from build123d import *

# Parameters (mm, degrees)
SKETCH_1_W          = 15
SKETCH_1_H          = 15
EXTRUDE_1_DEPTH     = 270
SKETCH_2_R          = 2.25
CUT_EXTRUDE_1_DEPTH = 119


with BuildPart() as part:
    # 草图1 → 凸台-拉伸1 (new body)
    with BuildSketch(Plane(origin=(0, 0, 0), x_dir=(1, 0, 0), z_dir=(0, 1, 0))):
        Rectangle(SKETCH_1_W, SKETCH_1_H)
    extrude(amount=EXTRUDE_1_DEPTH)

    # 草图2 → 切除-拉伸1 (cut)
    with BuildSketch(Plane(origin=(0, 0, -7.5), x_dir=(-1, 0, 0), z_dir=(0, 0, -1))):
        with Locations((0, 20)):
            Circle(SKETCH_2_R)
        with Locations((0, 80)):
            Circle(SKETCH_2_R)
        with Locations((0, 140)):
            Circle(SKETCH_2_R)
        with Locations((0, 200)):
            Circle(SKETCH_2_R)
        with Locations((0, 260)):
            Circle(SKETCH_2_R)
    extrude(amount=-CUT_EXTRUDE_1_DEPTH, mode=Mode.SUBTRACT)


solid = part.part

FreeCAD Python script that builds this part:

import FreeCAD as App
import Part
import Sketcher

V = App.Vector
Q = App.Units.Quantity


def add_polygon(sketch, points):
    """Adds a closed chain of lines whose ends are joined by coincident constraints."""
    first, n = sketch.GeometryCount, len(points)
    for a, b in zip(points, points[1:] + points[:1]):
        sketch.addGeometry(Part.LineSegment(App.Vector(*a, 0), App.Vector(*b, 0)), False)
    for i in range(n):
        sketch.addConstraint(Sketcher.Constraint("Coincident", first + i, 2, first + (i + 1) % n, 1))

doc = App.newDocument("Part")
params = doc.addObject("Spreadsheet::Sheet", "Params")
for row, (alias, value) in enumerate([
    ("sketch1_width", "15 mm"),
    ("pad1_length", "270 mm"),
    ("sketch2_diameter", "4.5 mm"),
    ("pocket1_length", "119 mm"),
], start=1):
    params.set(f"A{row}", alias)
    params.set(f"B{row}", "=" + value)
    params.setAlias(f"B{row}", alias)

body = doc.addObject("PartDesign::Body", "Body")

# Sketch on XZ plane
sketch1 = doc.addObject("Sketcher::SketchObject", "Sketch")
body.addObject(sketch1)
sketch1.AttachmentSupport = (doc.XZ_Plane, [""])
sketch1.MapMode = "FlatFace"
add_polygon(sketch1, [(-8, -8), (-8, 8), (8, 8), (8, -8)])  # lines 0-3
sketch1.addConstraint(Sketcher.Constraint("Vertical", 0))
sketch1.addConstraint(Sketcher.Constraint("Horizontal", 1))
sketch1.addConstraint(Sketcher.Constraint("Vertical", 2))
sketch1.addConstraint(Sketcher.Constraint("Horizontal", 3))
sketch1.addConstraint(Sketcher.Constraint("Symmetric", 0, 2, 2, 2, -1, 1))
sketch1.addConstraint(Sketcher.Constraint("Equal", 3, 0))
sketch1.addConstraint(Sketcher.Constraint("DistanceX", 1, 1, 1, 2, Q("15 mm")))
sketch1.setExpression("Constraints[10]", "Params.sketch1_width")
pad1 = doc.addObject("PartDesign::Pad", "Pad")
body.addObject(pad1)
pad1.Profile = sketch1
pad1.setExpression("Length", "Params.pad1_length")
pad1.Reversed = True

# Sketch on XY plane
sketch2 = doc.addObject("Sketcher::SketchObject", "Sketch001")
body.addObject(sketch2)
sketch2.AttachmentSupport = (doc.XY_Plane, [""])
sketch2.MapMode = "FlatFace"
sketch2.AttachmentOffset = App.Placement(V(0, 0, -7.5), App.Rotation())
sketch2.addGeometry(Part.Circle(V(0, 20, 0), V(0, 0, 1), 2.2), False)
sketch2.addGeometry(Part.Circle(V(0, 80, 0), V(0, 0, 1), 2.2), False)
sketch2.addGeometry(Part.Circle(V(0, 140, 0), V(0, 0, 1), 2.2), False)
sketch2.addGeometry(Part.Circle(V(0, 200, 0), V(0, 0, 1), 2.2), False)
sketch2.addGeometry(Part.Circle(V(0, 260, 0), V(0, 0, 1), 2.2), False)
sketch2.addConstraint(Sketcher.Constraint("Equal", 0, 1))
sketch2.addConstraint(Sketcher.Constraint("Equal", 1, 2))
sketch2.addConstraint(Sketcher.Constraint("Equal", 2, 3))
sketch2.addConstraint(Sketcher.Constraint("Equal", 3, 4))
sketch2.addConstraint(Sketcher.Constraint("PointOnObject", 0, 3, -2))
sketch2.addConstraint(Sketcher.Constraint("PointOnObject", 1, 3, -2))
sketch2.addConstraint(Sketcher.Constraint("PointOnObject", 2, 3, -2))
sketch2.addConstraint(Sketcher.Constraint("PointOnObject", 3, 3, -2))
sketch2.addConstraint(Sketcher.Constraint("PointOnObject", 4, 3, -2))
sketch2.addConstraint(Sketcher.Constraint("Diameter", 0, Q("4.5 mm")))
sketch2.addConstraint(Sketcher.Constraint("DistanceY", -1, 1, 0, 3, Q("20 mm")))
sketch2.addConstraint(Sketcher.Constraint("DistanceY", -1, 1, 1, 3, Q("80 mm")))
sketch2.addConstraint(Sketcher.Constraint("DistanceY", -1, 1, 2, 3, Q("140 mm")))
sketch2.addConstraint(Sketcher.Constraint("DistanceY", -1, 1, 3, 3, Q("200 mm")))
sketch2.addConstraint(Sketcher.Constraint("DistanceY", -1, 1, 4, 3, Q("260 mm")))
sketch2.setExpression("Constraints[9]", "Params.sketch2_diameter")
pocket1 = doc.addObject("PartDesign::Pocket", "Pocket")
body.addObject(pocket1)
pocket1.Profile = sketch2
pocket1.setExpression("Length", "Params.pocket1_length")
pocket1.Reversed = True

doc.recompute()
